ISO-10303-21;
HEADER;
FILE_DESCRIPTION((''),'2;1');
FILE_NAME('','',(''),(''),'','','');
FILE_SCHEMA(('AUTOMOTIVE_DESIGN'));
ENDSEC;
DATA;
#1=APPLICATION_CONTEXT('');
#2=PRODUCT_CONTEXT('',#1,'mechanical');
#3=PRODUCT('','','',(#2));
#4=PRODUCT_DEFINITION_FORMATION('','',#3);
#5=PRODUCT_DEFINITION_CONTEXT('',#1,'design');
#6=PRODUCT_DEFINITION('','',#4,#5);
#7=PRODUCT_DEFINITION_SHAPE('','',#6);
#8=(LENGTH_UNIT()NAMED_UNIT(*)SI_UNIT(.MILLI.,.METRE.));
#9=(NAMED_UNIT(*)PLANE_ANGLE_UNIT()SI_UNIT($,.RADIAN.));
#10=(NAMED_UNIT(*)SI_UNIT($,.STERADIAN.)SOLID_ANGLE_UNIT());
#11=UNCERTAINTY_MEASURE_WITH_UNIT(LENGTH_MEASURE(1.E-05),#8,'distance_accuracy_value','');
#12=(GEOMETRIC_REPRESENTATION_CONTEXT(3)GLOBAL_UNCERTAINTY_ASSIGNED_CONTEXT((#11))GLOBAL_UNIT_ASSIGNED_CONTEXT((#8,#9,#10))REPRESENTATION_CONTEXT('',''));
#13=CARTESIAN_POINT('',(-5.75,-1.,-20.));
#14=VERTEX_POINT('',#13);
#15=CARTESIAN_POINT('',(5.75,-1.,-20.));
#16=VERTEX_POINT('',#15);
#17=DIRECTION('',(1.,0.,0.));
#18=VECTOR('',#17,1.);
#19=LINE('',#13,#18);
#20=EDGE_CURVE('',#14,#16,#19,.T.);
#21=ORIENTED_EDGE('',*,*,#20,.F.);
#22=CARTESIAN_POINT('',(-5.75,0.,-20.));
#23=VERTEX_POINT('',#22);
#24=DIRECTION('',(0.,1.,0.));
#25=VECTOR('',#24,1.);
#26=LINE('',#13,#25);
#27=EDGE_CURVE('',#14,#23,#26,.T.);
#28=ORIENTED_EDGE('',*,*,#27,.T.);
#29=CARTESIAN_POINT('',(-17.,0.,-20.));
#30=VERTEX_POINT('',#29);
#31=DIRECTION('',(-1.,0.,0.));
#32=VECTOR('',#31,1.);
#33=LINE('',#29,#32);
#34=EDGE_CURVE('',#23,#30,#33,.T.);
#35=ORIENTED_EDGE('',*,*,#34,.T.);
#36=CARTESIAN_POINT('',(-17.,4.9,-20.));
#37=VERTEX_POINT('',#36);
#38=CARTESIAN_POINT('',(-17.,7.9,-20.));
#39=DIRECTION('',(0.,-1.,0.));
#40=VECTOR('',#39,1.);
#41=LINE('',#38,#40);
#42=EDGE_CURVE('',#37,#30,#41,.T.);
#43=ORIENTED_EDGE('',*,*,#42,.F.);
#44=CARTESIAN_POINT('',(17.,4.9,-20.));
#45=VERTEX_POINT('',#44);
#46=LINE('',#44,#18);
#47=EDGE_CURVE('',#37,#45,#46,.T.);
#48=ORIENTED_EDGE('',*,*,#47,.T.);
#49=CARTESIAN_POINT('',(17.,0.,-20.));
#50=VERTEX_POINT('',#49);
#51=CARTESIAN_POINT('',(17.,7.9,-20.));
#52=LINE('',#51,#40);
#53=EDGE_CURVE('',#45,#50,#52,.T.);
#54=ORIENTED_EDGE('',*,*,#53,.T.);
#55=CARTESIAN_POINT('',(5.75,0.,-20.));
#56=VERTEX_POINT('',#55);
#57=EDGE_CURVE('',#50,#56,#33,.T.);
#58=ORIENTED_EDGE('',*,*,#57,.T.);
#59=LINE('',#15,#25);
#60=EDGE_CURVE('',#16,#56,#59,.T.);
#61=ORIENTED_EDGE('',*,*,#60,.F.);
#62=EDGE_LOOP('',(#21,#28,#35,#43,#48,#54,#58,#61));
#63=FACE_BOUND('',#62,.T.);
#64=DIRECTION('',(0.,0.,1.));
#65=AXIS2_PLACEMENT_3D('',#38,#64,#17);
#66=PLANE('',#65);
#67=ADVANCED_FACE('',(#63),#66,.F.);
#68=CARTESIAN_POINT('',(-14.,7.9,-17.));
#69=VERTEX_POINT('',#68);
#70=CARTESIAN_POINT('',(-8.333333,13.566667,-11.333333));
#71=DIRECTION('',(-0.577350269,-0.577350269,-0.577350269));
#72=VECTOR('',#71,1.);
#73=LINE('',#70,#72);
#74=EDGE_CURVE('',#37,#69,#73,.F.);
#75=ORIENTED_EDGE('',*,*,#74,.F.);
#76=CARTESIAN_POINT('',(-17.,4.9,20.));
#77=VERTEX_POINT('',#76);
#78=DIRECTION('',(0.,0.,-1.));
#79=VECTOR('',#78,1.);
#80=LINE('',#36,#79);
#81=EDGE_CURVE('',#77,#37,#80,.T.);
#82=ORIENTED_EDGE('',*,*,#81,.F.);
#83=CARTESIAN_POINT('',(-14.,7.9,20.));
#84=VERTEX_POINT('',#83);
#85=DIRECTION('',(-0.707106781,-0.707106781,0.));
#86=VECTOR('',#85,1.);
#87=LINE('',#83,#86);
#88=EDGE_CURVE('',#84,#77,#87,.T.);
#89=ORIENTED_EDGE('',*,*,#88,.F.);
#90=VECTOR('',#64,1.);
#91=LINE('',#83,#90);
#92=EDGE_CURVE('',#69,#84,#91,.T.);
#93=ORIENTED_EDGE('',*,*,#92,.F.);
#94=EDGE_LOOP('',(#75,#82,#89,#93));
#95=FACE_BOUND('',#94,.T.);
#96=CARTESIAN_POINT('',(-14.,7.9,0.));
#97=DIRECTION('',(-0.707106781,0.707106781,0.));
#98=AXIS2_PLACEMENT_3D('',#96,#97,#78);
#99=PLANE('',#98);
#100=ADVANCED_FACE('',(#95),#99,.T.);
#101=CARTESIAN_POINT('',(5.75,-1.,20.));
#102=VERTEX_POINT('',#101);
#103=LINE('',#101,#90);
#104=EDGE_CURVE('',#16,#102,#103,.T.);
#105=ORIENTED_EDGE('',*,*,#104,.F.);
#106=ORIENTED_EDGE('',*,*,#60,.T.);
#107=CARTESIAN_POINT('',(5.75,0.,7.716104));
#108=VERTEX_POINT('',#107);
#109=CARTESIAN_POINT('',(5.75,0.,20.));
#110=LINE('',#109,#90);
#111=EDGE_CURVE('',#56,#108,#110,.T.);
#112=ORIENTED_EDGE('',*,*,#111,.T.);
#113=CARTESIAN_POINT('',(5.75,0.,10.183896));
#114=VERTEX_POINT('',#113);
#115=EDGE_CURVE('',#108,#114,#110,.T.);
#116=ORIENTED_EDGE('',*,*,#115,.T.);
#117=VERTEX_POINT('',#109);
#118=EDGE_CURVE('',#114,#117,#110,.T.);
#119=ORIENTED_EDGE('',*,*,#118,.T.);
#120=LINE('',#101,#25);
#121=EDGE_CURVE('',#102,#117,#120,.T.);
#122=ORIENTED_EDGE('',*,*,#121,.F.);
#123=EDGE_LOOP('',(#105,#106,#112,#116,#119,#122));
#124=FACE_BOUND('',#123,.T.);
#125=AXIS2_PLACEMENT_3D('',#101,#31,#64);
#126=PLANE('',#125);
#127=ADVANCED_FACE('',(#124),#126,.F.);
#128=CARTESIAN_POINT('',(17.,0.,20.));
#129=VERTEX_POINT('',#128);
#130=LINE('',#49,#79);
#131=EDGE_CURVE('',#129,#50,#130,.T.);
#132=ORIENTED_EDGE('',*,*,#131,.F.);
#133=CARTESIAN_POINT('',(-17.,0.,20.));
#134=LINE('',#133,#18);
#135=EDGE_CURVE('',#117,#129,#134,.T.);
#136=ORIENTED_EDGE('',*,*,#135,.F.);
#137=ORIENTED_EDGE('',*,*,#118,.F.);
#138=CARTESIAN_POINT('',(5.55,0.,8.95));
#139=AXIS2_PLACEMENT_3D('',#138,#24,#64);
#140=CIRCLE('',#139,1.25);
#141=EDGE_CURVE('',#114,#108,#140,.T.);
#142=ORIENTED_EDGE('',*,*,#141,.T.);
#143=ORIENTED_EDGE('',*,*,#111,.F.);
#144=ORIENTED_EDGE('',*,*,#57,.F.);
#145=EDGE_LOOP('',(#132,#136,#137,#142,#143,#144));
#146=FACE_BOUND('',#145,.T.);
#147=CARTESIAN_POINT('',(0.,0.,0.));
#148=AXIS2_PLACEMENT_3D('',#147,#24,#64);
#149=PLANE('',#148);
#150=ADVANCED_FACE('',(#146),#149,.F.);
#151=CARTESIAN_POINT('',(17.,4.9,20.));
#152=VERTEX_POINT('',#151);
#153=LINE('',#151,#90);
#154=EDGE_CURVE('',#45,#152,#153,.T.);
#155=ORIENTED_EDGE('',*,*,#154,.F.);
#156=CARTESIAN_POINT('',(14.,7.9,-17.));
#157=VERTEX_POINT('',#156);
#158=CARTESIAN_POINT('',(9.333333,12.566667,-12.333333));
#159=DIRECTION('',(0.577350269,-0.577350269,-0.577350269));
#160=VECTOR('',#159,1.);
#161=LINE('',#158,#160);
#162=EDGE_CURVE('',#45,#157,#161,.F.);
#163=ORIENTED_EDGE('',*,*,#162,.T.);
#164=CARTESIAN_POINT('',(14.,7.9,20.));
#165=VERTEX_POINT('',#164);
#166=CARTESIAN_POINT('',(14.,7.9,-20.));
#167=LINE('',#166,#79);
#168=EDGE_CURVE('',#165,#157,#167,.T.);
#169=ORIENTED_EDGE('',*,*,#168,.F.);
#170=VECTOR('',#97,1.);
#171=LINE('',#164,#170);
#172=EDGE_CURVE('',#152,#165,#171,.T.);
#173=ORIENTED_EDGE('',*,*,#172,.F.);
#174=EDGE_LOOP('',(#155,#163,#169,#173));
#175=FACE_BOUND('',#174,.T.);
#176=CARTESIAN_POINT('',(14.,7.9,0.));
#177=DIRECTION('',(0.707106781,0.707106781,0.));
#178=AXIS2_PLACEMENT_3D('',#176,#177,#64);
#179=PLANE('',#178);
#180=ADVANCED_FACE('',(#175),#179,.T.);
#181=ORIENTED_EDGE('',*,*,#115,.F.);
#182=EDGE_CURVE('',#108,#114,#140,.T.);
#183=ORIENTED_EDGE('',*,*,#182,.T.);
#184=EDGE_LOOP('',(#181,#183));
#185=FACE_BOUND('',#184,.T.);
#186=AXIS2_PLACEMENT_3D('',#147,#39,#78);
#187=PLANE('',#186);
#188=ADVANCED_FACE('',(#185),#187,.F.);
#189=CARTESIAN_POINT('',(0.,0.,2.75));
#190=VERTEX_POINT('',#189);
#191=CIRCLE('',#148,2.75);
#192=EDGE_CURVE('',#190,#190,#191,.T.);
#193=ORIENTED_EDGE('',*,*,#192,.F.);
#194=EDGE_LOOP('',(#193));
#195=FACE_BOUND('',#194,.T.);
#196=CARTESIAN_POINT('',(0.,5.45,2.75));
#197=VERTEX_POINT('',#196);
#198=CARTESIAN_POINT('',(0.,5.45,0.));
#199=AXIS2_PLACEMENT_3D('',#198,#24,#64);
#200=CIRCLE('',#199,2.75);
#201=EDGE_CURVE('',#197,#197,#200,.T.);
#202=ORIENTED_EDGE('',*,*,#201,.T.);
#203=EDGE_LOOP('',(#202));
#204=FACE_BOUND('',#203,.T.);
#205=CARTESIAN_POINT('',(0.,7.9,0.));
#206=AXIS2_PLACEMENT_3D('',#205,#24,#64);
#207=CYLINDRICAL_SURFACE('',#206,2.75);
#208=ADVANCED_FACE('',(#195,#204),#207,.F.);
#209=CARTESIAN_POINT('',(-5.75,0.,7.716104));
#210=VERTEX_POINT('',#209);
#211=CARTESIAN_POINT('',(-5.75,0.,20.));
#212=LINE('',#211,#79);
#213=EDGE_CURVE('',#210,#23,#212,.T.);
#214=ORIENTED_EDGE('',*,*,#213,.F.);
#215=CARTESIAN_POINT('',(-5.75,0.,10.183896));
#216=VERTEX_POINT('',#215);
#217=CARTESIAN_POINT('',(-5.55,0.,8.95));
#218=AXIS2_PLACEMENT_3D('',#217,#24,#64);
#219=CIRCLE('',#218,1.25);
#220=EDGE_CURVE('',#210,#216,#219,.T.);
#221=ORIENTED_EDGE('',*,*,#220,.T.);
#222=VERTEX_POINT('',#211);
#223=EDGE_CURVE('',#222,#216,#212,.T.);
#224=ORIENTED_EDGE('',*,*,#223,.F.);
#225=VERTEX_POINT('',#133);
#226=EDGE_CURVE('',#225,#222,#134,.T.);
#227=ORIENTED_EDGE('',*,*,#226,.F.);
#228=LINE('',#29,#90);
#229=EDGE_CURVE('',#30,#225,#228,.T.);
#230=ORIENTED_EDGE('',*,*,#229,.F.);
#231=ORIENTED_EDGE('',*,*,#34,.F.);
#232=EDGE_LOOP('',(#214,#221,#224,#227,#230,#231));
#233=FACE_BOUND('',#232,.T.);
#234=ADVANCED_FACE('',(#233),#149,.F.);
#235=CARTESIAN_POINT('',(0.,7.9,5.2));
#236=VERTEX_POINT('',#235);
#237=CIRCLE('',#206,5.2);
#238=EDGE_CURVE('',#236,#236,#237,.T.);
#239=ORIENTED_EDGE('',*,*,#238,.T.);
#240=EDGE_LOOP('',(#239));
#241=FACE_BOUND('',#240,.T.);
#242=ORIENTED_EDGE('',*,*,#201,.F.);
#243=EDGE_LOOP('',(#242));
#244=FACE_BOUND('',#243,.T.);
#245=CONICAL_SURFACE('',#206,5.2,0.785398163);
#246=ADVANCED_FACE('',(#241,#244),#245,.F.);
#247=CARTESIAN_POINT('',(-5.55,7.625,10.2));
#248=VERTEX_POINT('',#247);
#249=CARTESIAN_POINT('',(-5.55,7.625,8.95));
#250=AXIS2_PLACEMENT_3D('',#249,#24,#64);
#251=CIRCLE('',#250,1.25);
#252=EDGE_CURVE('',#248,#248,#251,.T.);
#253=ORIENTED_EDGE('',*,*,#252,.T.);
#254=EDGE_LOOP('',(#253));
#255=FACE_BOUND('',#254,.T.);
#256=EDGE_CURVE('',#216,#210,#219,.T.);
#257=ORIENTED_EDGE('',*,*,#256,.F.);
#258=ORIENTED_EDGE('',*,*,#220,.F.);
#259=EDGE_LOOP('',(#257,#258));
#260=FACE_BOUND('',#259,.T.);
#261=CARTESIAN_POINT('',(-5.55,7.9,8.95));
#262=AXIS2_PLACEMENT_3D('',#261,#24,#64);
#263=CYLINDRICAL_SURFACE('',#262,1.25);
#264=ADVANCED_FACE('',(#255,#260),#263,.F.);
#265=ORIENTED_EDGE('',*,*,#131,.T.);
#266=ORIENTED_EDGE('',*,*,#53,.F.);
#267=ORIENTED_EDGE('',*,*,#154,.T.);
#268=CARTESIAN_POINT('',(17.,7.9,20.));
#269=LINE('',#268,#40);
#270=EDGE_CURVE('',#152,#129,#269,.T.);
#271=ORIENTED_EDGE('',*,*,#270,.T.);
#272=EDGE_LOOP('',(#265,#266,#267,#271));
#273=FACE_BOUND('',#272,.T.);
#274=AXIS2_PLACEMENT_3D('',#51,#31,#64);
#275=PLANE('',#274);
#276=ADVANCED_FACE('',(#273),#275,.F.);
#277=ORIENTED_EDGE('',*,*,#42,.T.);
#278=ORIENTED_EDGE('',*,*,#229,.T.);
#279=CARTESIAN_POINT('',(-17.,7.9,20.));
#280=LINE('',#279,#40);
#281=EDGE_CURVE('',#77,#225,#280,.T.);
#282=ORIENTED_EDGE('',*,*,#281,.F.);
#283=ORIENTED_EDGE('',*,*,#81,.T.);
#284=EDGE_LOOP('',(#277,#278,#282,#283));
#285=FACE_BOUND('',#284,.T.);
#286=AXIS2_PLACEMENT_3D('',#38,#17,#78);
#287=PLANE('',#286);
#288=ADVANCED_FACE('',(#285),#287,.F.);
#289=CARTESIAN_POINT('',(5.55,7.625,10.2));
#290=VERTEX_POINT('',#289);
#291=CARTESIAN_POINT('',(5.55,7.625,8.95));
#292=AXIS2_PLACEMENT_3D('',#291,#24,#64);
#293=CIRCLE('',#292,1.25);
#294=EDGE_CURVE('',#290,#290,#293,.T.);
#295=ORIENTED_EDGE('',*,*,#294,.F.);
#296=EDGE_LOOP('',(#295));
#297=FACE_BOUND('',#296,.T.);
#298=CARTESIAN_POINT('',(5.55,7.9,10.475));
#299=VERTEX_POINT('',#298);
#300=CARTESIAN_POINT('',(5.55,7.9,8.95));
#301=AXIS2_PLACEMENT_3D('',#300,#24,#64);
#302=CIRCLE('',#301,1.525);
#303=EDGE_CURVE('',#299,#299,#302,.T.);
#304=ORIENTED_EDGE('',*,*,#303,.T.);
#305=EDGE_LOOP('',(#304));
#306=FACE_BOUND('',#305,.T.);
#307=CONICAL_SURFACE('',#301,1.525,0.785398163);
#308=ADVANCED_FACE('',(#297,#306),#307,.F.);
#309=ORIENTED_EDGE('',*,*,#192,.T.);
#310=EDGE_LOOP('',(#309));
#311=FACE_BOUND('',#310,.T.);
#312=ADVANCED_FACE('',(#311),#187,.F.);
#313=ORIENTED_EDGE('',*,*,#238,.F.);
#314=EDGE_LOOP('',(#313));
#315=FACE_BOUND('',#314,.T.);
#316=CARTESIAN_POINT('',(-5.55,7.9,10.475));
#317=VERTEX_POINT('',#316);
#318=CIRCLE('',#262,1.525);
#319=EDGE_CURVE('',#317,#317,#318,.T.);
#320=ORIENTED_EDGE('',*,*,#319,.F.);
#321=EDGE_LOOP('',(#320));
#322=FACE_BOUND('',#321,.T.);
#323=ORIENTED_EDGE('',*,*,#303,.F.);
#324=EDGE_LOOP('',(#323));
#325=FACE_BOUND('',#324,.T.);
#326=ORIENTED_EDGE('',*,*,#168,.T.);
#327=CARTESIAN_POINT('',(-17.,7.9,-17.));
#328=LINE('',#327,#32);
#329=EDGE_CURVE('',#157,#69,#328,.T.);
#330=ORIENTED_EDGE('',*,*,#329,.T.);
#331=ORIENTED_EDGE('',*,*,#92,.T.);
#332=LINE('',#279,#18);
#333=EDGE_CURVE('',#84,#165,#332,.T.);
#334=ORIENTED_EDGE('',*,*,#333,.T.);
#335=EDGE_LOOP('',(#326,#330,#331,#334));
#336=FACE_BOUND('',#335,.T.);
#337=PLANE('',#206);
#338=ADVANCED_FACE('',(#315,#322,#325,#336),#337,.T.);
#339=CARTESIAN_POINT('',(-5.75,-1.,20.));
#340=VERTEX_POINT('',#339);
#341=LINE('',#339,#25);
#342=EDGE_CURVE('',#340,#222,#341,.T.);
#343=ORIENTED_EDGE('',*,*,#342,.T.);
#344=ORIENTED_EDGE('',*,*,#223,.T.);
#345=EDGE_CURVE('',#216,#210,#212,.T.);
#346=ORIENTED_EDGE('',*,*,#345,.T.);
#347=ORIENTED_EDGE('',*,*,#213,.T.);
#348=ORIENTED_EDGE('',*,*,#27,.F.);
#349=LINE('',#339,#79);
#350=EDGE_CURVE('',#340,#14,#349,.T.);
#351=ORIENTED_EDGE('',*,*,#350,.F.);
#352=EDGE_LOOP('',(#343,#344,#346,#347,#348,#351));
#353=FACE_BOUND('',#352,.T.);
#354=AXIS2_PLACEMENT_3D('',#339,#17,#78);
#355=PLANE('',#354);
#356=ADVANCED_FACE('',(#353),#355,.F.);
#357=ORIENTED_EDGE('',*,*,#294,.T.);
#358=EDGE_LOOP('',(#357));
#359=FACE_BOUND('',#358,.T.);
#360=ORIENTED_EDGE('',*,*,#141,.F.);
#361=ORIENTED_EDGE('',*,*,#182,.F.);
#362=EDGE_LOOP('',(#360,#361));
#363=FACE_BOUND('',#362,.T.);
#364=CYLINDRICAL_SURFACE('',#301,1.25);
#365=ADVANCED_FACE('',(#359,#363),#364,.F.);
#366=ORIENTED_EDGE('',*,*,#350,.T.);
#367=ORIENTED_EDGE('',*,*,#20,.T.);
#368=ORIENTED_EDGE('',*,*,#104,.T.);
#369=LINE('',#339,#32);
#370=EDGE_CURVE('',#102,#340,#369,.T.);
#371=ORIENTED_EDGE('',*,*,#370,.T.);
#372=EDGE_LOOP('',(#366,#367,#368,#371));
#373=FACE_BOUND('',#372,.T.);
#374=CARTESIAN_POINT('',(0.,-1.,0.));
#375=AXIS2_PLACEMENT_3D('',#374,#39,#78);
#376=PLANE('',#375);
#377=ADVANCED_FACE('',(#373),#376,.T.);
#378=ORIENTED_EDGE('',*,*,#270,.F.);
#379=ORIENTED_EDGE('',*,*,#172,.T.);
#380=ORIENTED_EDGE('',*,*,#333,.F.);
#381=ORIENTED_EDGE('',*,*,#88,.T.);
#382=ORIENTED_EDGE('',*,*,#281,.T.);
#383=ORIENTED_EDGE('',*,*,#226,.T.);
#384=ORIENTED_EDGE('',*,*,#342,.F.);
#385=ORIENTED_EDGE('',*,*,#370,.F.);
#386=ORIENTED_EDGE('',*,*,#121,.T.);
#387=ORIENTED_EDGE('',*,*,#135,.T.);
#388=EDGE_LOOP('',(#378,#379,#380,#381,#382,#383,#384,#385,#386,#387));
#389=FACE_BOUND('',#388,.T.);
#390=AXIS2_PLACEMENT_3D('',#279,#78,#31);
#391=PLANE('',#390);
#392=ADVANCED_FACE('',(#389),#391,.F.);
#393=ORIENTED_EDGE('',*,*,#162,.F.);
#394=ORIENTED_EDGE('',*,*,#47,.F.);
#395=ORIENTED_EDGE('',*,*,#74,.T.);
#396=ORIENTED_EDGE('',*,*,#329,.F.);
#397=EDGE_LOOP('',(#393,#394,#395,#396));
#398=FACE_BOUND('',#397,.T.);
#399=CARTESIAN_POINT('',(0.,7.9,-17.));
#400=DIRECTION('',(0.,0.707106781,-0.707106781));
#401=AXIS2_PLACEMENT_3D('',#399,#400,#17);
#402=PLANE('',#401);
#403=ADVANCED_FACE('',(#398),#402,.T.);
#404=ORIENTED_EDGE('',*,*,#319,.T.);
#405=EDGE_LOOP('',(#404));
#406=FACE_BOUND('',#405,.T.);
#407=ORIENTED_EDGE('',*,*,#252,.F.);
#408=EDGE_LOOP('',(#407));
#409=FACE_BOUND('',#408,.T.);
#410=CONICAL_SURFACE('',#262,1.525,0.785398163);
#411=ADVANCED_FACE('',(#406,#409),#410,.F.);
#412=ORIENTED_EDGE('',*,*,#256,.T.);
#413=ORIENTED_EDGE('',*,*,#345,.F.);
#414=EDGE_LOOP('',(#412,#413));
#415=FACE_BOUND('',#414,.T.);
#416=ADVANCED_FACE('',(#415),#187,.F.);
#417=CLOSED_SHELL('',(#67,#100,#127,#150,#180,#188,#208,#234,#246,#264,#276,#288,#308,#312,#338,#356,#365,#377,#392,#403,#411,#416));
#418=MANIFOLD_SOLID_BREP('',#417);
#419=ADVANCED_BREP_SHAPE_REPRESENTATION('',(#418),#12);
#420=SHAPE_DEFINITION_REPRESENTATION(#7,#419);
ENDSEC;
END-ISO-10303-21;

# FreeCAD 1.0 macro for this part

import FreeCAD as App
import Part
import Sketcher


def edges_at(feature, points):
    """Names of the edges that pass closest to the given points."""
    edges = feature.Shape.Edges
    near = lambda p: min(range(len(edges)), key=lambda i: edges[i].distToShape(Part.Vertex(*p))[0])
    return sorted({f"Edge{near(p) + 1}" for p in points})

doc = App.newDocument("Part")
body = doc.addObject("PartDesign::Body", "Body")

# Sketch on XZ plane
sketch1 = doc.addObject("Sketcher::SketchObject", "Sketch")
body.addObject(sketch1)
sketch1.AttachmentSupport = (doc.XZ_Plane, [""])
sketch1.MapMode = "FlatFace"
sketch1.addGeometry(Part.LineSegment(App.Vector(-17, -20, 0), App.Vector(-17, 20, 0)), False)
sketch1.addGeometry(Part.LineSegment(App.Vector(-17, 20, 0), App.Vector(17, 20, 0)), False)
sketch1.addGeometry(Part.LineSegment(App.Vector(17, 20, 0), App.Vector(17, -20, 0)), False)
sketch1.addGeometry(Part.LineSegment(App.Vector(17, -20, 0), App.Vector(-17, -20, 0)), False)
sketch1.addConstraint(Sketcher.Constraint("Coincident", 0, 2, 1, 1))
sketch1.addConstraint(Sketcher.Constraint("Coincident", 1, 2, 2, 1))
sketch1.addConstraint(Sketcher.Constraint("Coincident", 2, 2, 3, 1))
sketch1.addConstraint(Sketcher.Constraint("Coincident", 3, 2, 0, 1))
sketch1.addConstraint(Sketcher.Constraint("Vertical", 0))
sketch1.addConstraint(Sketcher.Constraint("Horizontal", 1))
sketch1.addConstraint(Sketcher.Constraint("Vertical", 2))
sketch1.addConstraint(Sketcher.Constraint("Horizontal", 3))
sketch1.addConstraint(Sketcher.Constraint("Symmetric", 0, 2, 2, 2, -1, 1))
sketch1.addConstraint(Sketcher.Constraint("DistanceX", 1, 1, 1, 2, 34.0))
sketch1.addConstraint(Sketcher.Constraint("DistanceY", 0, 1, 0, 2, 40.0))
pad1 = doc.addObject("PartDesign::Pad", "Pad")
body.addObject(pad1)
pad1.Profile = sketch1
pad1.Length = 7.9
pad1.Reversed = True

# Sketch on XZ plane
sketch2 = doc.addObject("Sketcher::SketchObject", "Sketch001")
body.addObject(sketch2)
sketch2.AttachmentSupport = (doc.XZ_Plane, [""])
sketch2.MapMode = "FlatFace"
sketch2.AttachmentOffset = App.Placement(App.Vector(0, 0, -7.9), App.Rotation())
sketch2.addGeometry(Part.Circle(App.Vector(0, 0, 0), App.Vector(0, 0, 1), 2.75), False)
sketch2.addConstraint(Sketcher.Constraint("Coincident", 0, 3, -1, 1))
sketch2.addConstraint(Sketcher.Constraint("Diameter", 0, 5.5))
doc.recompute()
hole = doc.addObject("PartDesign::Hole", "Hole")
body.addObject(hole)
hole.Profile = sketch2
hole.ThreadType = "None"
hole.Diameter = 5.5
hole.DepthType = "ThroughAll"
hole.HoleCutType = "Countersink"
hole.HoleCutDiameter = 10.4
hole.HoleCutCountersinkAngle = 90
hole.Reversed = True

# Sketch on XZ plane
sketch3 = doc.addObject("Sketcher::SketchObject", "Sketch002")
body.addObject(sketch3)
sketch3.AttachmentSupport = (doc.XZ_Plane, [""])
sketch3.MapMode = "FlatFace"
sketch3.AttachmentOffset = App.Placement(App.Vector(0, 0, -7.9), App.Rotation())
sketch3.addGeometry(Part.Circle(App.Vector(-5.55, 8.95, 0), App.Vector(0, 0, 1), 1.25), False)
sketch3.addGeometry(Part.Circle(App.Vector(5.55, 8.95, 0), App.Vector(0, 0, 1), 1.25), False)
sketch3.addConstraint(Sketcher.Constraint("Equal", 0, 1))
sketch3.addConstraint(Sketcher.Constraint("Symmetric", 0, 3, 1, 3, -2))
sketch3.addConstraint(Sketcher.Constraint("Diameter", 0, 2.5))
sketch3.addConstraint(Sketcher.Constraint("DistanceX", 0, 3, 1, 3, 11.1))
sketch3.addConstraint(Sketcher.Constraint("DistanceY", -1, 1, 0, 3, 8.95))
doc.recompute()
hole2 = doc.addObject("PartDesign::Hole", "Hole001")
body.addObject(hole2)
hole2.Profile = sketch3
hole2.ThreadType = "None"
hole2.Diameter = 2.5
hole2.DepthType = "ThroughAll"
hole2.HoleCutType = "Countersink"
hole2.HoleCutDiameter = 3.05
hole2.HoleCutCountersinkAngle = 90
hole2.Reversed = True
doc.recompute()

chamfer = doc.addObject("PartDesign::Chamfer", "Chamfer")
body.addObject(chamfer)
chamfer.Base = (hole2, edges_at(hole2, [(-17, 7.9, 0), (17, 7.9, 0), (0, 7.9, -20)]))
chamfer.Size = 3

# Sketch on XZ plane
sketch4 = doc.addObject("Sketcher::SketchObject", "Sketch003")
body.addObject(sketch4)
sketch4.AttachmentSupport = (doc.XZ_Plane, [""])
sketch4.MapMode = "FlatFace"
sketch4.addGeometry(Part.LineSegment(App.Vector(-5.75, 20, 0), App.Vector(-5.75, -20, 0)), False)
sketch4.addGeometry(Part.LineSegment(App.Vector(-5.75, -20, 0), App.Vector(5.75, -20, 0)), False)
sketch4.addGeometry(Part.LineSegment(App.Vector(5.75, -20, 0), App.Vector(5.75, 20, 0)), False)
sketch4.addGeometry(Part.LineSegment(App.Vector(5.75, 20, 0), App.Vector(-5.75, 20, 0)), False)
sketch4.addConstraint(Sketcher.Constraint("Coincident", 0, 2, 1, 1))
sketch4.addConstraint(Sketcher.Constraint("Coincident", 1, 2, 2, 1))
sketch4.addConstraint(Sketcher.Constraint("Coincident", 2, 2, 3, 1))
sketch4.addConstraint(Sketcher.Constraint("Coincident", 3, 2, 0, 1))
sketch4.addConstraint(Sketcher.Constraint("Vertical", 0))
sketch4.addConstraint(Sketcher.Constraint("Horizontal", 1))
sketch4.addConstraint(Sketcher.Constraint("Vertical", 2))
sketch4.addConstraint(Sketcher.Constraint("Horizontal", 3))
sketch4.addConstraint(Sketcher.Constraint("Symmetric", 0, 2, 2, 2, -1, 1))
sketch4.addConstraint(Sketcher.Constraint("DistanceY", 0, 2, 0, 1, 40.0))
sketch4.addConstraint(Sketcher.Constraint("DistanceX", 1, 1, 1, 2, 11.5))
pad2 = doc.addObject("PartDesign::Pad", "Pad001")
body.addObject(pad2)
pad2.Profile = sketch4
pad2.Length = 1

doc.recompute()
